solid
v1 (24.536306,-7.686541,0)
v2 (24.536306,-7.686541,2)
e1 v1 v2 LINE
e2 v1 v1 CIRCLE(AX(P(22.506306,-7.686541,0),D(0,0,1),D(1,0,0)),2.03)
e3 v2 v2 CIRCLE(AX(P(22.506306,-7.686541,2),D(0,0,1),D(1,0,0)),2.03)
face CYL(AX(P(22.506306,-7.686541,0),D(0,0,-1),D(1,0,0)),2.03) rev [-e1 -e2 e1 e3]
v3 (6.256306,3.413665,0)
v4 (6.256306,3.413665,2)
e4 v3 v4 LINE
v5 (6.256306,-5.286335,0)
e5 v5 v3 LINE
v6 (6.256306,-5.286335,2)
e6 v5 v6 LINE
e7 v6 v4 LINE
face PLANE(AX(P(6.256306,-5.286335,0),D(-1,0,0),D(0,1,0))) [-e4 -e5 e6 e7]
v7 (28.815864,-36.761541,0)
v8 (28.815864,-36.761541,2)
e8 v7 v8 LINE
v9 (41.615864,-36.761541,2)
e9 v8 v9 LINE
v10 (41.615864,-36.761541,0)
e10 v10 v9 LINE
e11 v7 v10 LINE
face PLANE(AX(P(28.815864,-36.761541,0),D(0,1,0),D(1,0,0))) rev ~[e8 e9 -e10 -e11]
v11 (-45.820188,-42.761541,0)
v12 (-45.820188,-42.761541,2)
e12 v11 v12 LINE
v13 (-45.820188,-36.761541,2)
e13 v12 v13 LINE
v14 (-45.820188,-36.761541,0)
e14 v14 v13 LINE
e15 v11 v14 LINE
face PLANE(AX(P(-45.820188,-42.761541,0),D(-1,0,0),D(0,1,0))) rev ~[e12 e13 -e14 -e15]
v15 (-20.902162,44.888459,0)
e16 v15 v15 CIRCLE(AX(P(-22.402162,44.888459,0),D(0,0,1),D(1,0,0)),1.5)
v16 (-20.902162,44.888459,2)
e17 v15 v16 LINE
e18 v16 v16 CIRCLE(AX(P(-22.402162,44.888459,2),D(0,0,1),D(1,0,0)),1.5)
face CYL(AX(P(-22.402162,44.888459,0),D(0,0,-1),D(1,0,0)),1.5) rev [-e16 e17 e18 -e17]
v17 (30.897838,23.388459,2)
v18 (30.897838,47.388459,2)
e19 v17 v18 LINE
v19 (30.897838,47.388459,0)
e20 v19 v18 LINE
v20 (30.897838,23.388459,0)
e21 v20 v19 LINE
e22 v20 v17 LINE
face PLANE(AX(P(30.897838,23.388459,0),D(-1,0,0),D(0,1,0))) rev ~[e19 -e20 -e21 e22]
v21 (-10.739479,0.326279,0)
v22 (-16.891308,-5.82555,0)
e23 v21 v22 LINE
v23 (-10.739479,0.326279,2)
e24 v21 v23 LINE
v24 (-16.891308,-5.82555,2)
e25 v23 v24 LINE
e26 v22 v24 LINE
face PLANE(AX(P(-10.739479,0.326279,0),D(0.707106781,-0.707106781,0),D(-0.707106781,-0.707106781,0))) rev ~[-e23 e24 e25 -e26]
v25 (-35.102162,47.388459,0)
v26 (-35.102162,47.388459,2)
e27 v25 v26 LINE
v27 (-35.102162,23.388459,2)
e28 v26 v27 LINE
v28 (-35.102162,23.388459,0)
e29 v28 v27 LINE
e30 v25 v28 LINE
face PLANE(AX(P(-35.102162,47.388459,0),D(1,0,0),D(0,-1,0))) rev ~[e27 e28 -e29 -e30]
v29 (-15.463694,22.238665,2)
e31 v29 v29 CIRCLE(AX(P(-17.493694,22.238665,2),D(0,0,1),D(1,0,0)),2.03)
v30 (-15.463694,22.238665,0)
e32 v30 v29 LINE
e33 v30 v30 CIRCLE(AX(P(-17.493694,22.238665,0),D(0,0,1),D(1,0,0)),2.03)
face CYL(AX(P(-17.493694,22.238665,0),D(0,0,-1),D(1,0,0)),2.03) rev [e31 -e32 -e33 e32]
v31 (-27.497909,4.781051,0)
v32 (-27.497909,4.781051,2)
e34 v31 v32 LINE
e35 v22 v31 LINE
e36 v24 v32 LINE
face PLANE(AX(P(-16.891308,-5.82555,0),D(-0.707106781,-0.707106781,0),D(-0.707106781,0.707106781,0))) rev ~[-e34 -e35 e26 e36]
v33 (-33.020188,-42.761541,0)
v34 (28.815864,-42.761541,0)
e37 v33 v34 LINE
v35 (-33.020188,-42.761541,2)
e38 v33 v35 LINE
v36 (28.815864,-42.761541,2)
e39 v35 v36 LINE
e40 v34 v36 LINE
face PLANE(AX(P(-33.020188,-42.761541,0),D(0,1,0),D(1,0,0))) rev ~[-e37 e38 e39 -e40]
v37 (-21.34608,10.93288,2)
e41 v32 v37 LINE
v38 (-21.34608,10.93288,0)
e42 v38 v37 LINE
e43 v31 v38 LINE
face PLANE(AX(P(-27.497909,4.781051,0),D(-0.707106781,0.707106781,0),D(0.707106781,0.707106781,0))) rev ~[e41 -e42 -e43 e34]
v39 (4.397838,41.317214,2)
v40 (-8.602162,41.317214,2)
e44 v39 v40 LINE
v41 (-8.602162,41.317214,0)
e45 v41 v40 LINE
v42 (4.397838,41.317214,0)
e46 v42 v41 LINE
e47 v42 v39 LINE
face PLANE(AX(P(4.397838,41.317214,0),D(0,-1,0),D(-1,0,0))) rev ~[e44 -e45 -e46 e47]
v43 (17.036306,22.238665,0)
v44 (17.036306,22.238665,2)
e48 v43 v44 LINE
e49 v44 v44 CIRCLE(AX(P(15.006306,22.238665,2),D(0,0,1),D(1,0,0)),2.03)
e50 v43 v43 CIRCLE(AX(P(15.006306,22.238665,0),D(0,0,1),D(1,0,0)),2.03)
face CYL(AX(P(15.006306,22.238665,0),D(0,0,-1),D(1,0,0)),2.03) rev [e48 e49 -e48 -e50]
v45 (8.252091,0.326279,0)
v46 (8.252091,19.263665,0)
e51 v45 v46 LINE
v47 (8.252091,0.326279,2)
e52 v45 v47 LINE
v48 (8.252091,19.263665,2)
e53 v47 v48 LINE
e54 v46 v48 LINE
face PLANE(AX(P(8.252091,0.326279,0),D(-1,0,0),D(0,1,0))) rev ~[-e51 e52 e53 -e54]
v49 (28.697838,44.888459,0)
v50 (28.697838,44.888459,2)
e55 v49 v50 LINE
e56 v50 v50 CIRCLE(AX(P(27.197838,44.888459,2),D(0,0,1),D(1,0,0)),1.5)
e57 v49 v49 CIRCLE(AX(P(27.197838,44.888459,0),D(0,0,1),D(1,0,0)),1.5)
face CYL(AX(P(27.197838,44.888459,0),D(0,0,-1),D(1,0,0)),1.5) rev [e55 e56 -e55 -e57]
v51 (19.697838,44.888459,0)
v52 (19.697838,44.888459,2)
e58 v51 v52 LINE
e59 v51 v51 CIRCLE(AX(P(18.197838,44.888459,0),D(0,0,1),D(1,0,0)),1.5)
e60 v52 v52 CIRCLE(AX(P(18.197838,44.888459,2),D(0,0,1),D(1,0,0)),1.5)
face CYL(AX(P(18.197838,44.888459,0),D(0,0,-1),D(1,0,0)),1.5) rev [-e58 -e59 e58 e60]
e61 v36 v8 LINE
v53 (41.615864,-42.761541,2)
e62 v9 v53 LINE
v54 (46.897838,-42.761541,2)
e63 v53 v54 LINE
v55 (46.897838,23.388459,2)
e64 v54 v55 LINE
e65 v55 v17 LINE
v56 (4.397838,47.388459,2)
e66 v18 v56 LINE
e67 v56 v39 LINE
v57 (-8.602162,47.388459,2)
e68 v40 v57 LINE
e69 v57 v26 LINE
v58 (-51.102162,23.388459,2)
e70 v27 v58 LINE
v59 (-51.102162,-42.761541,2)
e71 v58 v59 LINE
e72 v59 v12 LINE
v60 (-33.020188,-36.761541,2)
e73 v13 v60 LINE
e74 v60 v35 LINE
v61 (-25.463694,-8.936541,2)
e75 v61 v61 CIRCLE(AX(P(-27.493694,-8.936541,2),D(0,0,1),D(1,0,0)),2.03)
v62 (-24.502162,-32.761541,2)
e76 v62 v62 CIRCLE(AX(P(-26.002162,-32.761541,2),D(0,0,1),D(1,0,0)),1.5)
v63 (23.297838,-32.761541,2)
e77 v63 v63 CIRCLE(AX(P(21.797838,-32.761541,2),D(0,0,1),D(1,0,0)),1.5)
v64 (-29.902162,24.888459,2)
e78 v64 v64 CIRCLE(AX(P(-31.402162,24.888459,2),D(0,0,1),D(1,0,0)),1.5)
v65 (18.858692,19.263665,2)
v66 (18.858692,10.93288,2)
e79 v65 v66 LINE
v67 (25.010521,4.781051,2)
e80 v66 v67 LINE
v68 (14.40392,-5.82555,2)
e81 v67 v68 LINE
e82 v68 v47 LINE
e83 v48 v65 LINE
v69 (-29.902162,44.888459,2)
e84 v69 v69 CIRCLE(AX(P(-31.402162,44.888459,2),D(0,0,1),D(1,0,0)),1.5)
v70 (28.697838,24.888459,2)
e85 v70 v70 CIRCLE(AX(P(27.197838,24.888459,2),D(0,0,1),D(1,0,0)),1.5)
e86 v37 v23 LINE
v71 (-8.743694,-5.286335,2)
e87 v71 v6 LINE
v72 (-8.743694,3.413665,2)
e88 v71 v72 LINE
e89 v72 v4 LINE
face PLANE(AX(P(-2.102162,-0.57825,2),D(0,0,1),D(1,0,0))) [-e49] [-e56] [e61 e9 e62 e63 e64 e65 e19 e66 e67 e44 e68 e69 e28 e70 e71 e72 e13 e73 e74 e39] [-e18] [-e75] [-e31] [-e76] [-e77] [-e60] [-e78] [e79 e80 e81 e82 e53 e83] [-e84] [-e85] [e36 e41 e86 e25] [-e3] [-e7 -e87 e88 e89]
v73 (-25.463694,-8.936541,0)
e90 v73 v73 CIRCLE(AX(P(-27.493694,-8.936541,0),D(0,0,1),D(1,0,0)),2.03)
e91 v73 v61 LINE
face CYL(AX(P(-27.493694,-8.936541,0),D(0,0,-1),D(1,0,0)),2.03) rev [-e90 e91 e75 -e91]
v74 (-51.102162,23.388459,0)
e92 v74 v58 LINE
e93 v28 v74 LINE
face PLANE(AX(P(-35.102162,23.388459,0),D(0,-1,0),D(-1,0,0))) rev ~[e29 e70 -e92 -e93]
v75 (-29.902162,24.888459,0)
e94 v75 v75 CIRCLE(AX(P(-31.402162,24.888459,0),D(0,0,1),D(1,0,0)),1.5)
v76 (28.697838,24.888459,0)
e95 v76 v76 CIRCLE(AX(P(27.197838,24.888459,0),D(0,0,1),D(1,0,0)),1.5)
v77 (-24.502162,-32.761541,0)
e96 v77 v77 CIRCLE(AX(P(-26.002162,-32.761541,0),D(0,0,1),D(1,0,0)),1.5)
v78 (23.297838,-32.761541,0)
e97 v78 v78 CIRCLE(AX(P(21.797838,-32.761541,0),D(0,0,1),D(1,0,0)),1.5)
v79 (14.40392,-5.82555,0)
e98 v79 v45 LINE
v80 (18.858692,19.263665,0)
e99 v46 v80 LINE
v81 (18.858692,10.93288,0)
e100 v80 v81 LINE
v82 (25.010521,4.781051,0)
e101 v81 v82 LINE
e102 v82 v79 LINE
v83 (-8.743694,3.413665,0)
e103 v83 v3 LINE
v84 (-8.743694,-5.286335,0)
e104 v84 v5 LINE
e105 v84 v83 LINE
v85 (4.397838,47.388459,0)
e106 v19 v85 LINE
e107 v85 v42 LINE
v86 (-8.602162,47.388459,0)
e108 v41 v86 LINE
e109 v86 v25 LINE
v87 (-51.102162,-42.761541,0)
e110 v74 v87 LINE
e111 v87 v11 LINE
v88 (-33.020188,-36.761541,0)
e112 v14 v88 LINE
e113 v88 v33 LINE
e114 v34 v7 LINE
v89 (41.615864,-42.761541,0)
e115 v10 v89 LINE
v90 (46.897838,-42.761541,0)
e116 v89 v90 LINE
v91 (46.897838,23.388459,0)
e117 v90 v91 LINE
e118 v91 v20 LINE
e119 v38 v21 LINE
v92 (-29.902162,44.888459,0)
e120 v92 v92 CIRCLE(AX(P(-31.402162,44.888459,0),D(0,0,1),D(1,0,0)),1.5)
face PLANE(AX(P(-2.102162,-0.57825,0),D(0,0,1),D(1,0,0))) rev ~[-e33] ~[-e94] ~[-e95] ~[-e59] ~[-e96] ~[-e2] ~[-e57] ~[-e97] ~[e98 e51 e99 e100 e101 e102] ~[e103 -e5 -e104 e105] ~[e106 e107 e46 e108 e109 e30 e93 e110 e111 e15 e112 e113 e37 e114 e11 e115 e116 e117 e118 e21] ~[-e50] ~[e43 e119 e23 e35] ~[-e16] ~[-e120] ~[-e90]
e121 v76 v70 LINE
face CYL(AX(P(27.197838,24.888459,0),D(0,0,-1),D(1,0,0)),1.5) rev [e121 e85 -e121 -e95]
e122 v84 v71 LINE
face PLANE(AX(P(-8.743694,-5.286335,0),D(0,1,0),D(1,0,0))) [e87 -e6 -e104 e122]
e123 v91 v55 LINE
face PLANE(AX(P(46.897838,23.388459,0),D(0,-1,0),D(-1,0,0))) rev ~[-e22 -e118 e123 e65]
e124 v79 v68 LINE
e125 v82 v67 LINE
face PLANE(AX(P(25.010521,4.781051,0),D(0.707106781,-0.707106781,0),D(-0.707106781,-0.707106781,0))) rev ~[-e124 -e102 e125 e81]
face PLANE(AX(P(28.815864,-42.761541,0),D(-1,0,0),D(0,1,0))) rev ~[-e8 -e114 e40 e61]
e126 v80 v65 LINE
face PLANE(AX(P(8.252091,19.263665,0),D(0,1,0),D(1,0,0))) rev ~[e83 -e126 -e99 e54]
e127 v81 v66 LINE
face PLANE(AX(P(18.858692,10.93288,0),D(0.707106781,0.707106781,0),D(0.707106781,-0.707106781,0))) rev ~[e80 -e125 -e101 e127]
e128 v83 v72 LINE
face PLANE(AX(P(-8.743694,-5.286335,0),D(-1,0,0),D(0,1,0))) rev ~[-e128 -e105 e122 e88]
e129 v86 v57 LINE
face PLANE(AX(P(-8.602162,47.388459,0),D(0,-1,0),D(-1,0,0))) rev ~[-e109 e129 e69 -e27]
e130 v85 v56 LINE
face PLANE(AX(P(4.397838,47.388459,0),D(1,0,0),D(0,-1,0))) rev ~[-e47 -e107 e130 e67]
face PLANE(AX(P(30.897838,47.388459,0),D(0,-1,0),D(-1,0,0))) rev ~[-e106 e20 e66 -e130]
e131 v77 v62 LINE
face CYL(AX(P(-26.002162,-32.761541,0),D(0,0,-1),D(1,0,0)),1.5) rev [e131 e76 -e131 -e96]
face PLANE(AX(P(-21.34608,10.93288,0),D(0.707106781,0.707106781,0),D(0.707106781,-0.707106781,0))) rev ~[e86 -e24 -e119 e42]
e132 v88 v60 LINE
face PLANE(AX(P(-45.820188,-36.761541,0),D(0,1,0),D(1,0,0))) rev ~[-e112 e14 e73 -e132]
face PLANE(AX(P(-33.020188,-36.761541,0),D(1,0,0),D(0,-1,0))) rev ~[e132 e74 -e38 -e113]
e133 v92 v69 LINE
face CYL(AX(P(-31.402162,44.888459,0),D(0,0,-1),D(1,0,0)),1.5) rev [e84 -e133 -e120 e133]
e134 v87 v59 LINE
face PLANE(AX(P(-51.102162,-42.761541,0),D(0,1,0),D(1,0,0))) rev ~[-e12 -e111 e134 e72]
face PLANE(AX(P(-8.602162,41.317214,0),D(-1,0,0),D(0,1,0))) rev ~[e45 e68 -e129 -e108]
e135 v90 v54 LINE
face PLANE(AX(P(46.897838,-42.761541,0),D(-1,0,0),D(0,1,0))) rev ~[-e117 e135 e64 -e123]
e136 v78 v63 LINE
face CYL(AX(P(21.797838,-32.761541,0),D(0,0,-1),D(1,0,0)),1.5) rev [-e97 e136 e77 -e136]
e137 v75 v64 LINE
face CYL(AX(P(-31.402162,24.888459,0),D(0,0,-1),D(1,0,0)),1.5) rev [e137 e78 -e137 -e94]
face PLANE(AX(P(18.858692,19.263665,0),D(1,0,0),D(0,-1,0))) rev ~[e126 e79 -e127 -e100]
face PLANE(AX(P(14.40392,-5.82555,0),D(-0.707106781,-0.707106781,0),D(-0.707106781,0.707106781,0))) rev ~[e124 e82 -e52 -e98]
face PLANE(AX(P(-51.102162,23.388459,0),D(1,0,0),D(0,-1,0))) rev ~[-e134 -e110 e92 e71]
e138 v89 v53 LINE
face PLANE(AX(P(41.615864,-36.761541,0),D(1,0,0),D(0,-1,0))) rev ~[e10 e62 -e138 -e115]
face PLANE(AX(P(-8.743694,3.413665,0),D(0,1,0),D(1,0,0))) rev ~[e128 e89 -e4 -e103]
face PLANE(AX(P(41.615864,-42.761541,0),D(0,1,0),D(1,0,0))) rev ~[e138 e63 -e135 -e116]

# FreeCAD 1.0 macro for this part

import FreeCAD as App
import Part
import Sketcher
Q = App.Units.Quantity

doc = App.newDocument("Part")
body = doc.addObject("PartDesign::Body", "Body")

# Sketch on XY plane
sketch1 = body.newObject("Sketcher::SketchObject", "Sketch")
sketch1.AttachmentSupport = (doc.getObject("XY_Plane"), [""])
sketch1.MapMode = "FlatFace"
sketch1.addGeometry([
    Part.LineSegment(App.Vector(41.615864, -42.761541, 0), App.Vector(46.897838, -42.761541, 0)),  # 0
    Part.LineSegment(App.Vector(46.897838, -42.761541, 0), App.Vector(46.897838, 23.388459, 0)),  # 1
    Part.LineSegment(App.Vector(46.897838, 23.388459, 0), App.Vector(30.897838, 23.388459, 0)),  # 2
    Part.LineSegment(App.Vector(30.897838, 23.388459, 0), App.Vector(30.897838, 47.388459, 0)),  # 3
    Part.LineSegment(App.Vector(30.897838, 47.388459, 0), App.Vector(4.397838, 47.388459, 0)),  # 4
    Part.LineSegment(App.Vector(4.397838, 47.388459, 0), App.Vector(4.397838, 41.317214, 0)),  # 5
    Part.LineSegment(App.Vector(4.397838, 41.317214, 0), App.Vector(-8.602162, 41.317214, 0)),  # 6
    Part.LineSegment(App.Vector(-8.602162, 41.317214, 0), App.Vector(-8.602162, 47.388459, 0)),  # 7
    Part.LineSegment(App.Vector(-8.602162, 47.388459, 0), App.Vector(-35.102162, 47.388459, 0)),  # 8
    Part.LineSegment(App.Vector(-35.102162, 47.388459, 0), App.Vector(-35.102162, 23.388459, 0)),  # 9
    Part.LineSegment(App.Vector(-35.102162, 23.388459, 0), App.Vector(-51.102162, 23.388459, 0)),  # 10
    Part.LineSegment(App.Vector(-51.102162, 23.388459, 0), App.Vector(-51.102162, -42.761541, 0)),  # 11
    Part.LineSegment(App.Vector(-51.102162, -42.761541, 0), App.Vector(-45.820188, -42.761541, 0)),  # 12
    Part.LineSegment(App.Vector(-45.820188, -42.761541, 0), App.Vector(-45.820188, -36.761541, 0)),  # 13
    Part.LineSegment(App.Vector(-45.820188, -36.761541, 0), App.Vector(-33.020188, -36.761541, 0)),  # 14
    Part.LineSegment(App.Vector(-33.020188, -36.761541, 0), App.Vector(-33.020188, -42.761541, 0)),  # 15
    Part.LineSegment(App.Vector(-33.020188, -42.761541, 0), App.Vector(28.815864, -42.761541, 0)),  # 16
    Part.LineSegment(App.Vector(28.815864, -42.761541, 0), App.Vector(28.815864, -36.761541, 0)),  # 17
    Part.LineSegment(App.Vector(28.815864, -36.761541, 0), App.Vector(41.615864, -36.761541, 0)),  # 18
    Part.LineSegment(App.Vector(41.615864, -36.761541, 0), App.Vector(41.615864, -42.761541, 0)),  # 19
    Part.Circle(App.Vector(-26.002162, -32.761541, 0), App.Vector(0, 0, 1), 1.5),  # 20
    Part.Circle(App.Vector(-27.493694, -8.936541, 0), App.Vector(0, 0, 1), 2.03),  # 21
    Part.LineSegment(App.Vector(-27.497909, 4.781051, 0), App.Vector(-21.34608, 10.93288, 0)),  # 22
    Part.LineSegment(App.Vector(-21.34608, 10.93288, 0), App.Vector(-10.739479, 0.326279, 0)),  # 23
    Part.LineSegment(App.Vector(-10.739479, 0.326279, 0), App.Vector(-16.891308, -5.82555, 0)),  # 24
    Part.LineSegment(App.Vector(-16.891308, -5.82555, 0), App.Vector(-27.497909, 4.781051, 0)),  # 25
    Part.Circle(App.Vector(21.797838, -32.761541, 0), App.Vector(0, 0, 1), 1.5),  # 26
    Part.LineSegment(App.Vector(6.256306, -5.286335, 0), App.Vector(-8.743694, -5.286335, 0)),  # 27
    Part.LineSegment(App.Vector(-8.743694, -5.286335, 0), App.Vector(-8.743694, 3.413665, 0)),  # 28
    Part.LineSegment(App.Vector(-8.743694, 3.413665, 0), App.Vector(6.256306, 3.413665, 0)),  # 29
    Part.LineSegment(App.Vector(6.256306, 3.413665, 0), App.Vector(6.256306, -5.286335, 0)),  # 30
    Part.Circle(App.Vector(22.506306, -7.686541, 0), App.Vector(0, 0, 1), 2.03),  # 31
    Part.Circle(App.Vector(-31.402162, 24.888459, 0), App.Vector(0, 0, 1), 1.5),  # 32
    Part.Circle(App.Vector(-17.493694, 22.238665, 0), App.Vector(0, 0, 1), 2.03),  # 33
    Part.Circle(App.Vector(-31.402162, 44.888459, 0), App.Vector(0, 0, 1), 1.5),  # 34
    Part.Circle(App.Vector(-22.402162, 44.888459, 0), App.Vector(0, 0, 1), 1.5),  # 35
    Part.LineSegment(App.Vector(25.010521, 4.781051, 0), App.Vector(14.40392, -5.82555, 0)),  # 36
    Part.LineSegment(App.Vector(14.40392, -5.82555, 0), App.Vector(8.252091, 0.326279, 0)),  # 37
    Part.LineSegment(App.Vector(8.252091, 0.326279, 0), App.Vector(8.252091, 19.263665, 0)),  # 38
    Part.LineSegment(App.Vector(8.252091, 19.263665, 0), App.Vector(18.858692, 19.263665, 0)),  # 39
    Part.LineSegment(App.Vector(18.858692, 19.263665, 0), App.Vector(18.858692, 10.93288, 0)),  # 40
    Part.LineSegment(App.Vector(18.858692, 10.93288, 0), App.Vector(25.010521, 4.781051, 0)),  # 41
    Part.Circle(App.Vector(15.006306, 22.238665, 0), App.Vector(0, 0, 1), 2.03),  # 42
    Part.Circle(App.Vector(27.197838, 24.888459, 0), App.Vector(0, 0, 1), 1.5),  # 43
    Part.Circle(App.Vector(18.197838, 44.888459, 0), App.Vector(0, 0, 1), 1.5),  # 44
    Part.Circle(App.Vector(27.197838, 44.888459, 0), App.Vector(0, 0, 1), 1.5),  # 45
], False)
sketch1.addConstraint([
    Sketcher.Constraint("Coincident", 0, 2, 1, 1),
    Sketcher.Constraint("Coincident", 1, 2, 2, 1),
    Sketcher.Constraint("Coincident", 2, 2, 3, 1),
    Sketcher.Constraint("Coincident", 3, 2, 4, 1),
    Sketcher.Constraint("Coincident", 4, 2, 5, 1),
    Sketcher.Constraint("Coincident", 5, 2, 6, 1),
    Sketcher.Constraint("Coincident", 6, 2, 7, 1),
    Sketcher.Constraint("Coincident", 7, 2, 8, 1),
    Sketcher.Constraint("Coincident", 8, 2, 9, 1),
    Sketcher.Constraint("Coincident", 9, 2, 10, 1),
    Sketcher.Constraint("Coincident", 10, 2, 11, 1),
    Sketcher.Constraint("Coincident", 11, 2, 12, 1),
    Sketcher.Constraint("Coincident", 12, 2, 13, 1),
    Sketcher.Constraint("Coincident", 13, 2, 14, 1),
    Sketcher.Constraint("Coincident", 14, 2, 15, 1),
    Sketcher.Constraint("Coincident", 15, 2, 16, 1),
    Sketcher.Constraint("Coincident", 16, 2, 17, 1),
    Sketcher.Constraint("Coincident", 17, 2, 18, 1),
    Sketcher.Constraint("Coincident", 18, 2, 19, 1),
    Sketcher.Constraint("Coincident", 19, 2, 0, 1),
    Sketcher.Constraint("Coincident", 22, 2, 23, 1),
    Sketcher.Constraint("Coincident", 23, 2, 24, 1),
    Sketcher.Constraint("Coincident", 24, 2, 25, 1),
    Sketcher.Constraint("Coincident", 25, 2, 22, 1),
    Sketcher.Constraint("Coincident", 27, 2, 28, 1),
    Sketcher.Constraint("Coincident", 28, 2, 29, 1),
    Sketcher.Constraint("Coincident", 29, 2, 30, 1),
    Sketcher.Constraint("Coincident", 30, 2, 27, 1),
    Sketcher.Constraint("Coincident", 36, 2, 37, 1),
    Sketcher.Constraint("Coincident", 37, 2, 38, 1),
    Sketcher.Constraint("Coincident", 38, 2, 39, 1),
    Sketcher.Constraint("Coincident", 39, 2, 40, 1),
    Sketcher.Constraint("Coincident", 40, 2, 41, 1),
    Sketcher.Constraint("Coincident", 41, 2, 36, 1),
    Sketcher.Constraint("Horizontal", 0),
    Sketcher.Constraint("Vertical", 1),
    Sketcher.Constraint("Horizontal", 2),
    Sketcher.Constraint("Vertical", 3),
    Sketcher.Constraint("Horizontal", 4),
    Sketcher.Constraint("Vertical", 5),
    Sketcher.Constraint("Horizontal", 6),
    Sketcher.Constraint("Vertical", 7),
    Sketcher.Constraint("Horizontal", 8),
    Sketcher.Constraint("Vertical", 9),
    Sketcher.Constraint("Horizontal", 10),
    Sketcher.Constraint("Vertical", 11),
    Sketcher.Constraint("Horizontal", 12),
    Sketcher.Constraint("Vertical", 13),
    Sketcher.Constraint("Horizontal", 14),
    Sketcher.Constraint("Vertical", 15),
    Sketcher.Constraint("Horizontal", 16),
    Sketcher.Constraint("Vertical", 17),
    Sketcher.Constraint("Horizontal", 18),
    Sketcher.Constraint("Vertical", 19),
    Sketcher.Constraint("Horizontal", 27),
    Sketcher.Constraint("Vertical", 28),
    Sketcher.Constraint("Horizontal", 29),
    Sketcher.Constraint("Vertical", 30),
    Sketcher.Constraint("Vertical", 38),
    Sketcher.Constraint("Horizontal", 39),
    Sketcher.Constraint("Vertical", 40),
    Sketcher.Constraint("Equal", 20, 26),
    Sketcher.Constraint("Equal", 21, 31),
    Sketcher.Constraint("Equal", 26, 32),
    Sketcher.Constraint("Equal", 31, 33),
    Sketcher.Constraint("Equal", 32, 34),
    Sketcher.Constraint("Equal", 34, 35),
    Sketcher.Constraint("Equal", 33, 42),
    Sketcher.Constraint("Equal", 35, 43),
    Sketcher.Constraint("Equal", 43, 44),
    Sketcher.Constraint("Equal", 44, 45),
    Sketcher.Constraint("Perpendicular", 22, 23),
    Sketcher.Constraint("Perpendicular", 23, 24),
    Sketcher.Constraint("Perpendicular", 24, 25),
    Sketcher.Constraint("Perpendicular", 25, 36),
    Sketcher.Constraint("Perpendicular", 36, 37),
    Sketcher.Constraint("Parallel", 37, 41),
    Sketcher.Constraint("Horizontal", 20, 3, 26, 3),
    Sketcher.Constraint("Horizontal", 34, 3, 35, 3),
    Sketcher.Constraint("Horizontal", 33, 3, 42, 3),
    Sketcher.Constraint("Horizontal", 32, 3, 43, 3),
    Sketcher.Constraint("Horizontal", 35, 3, 44, 3),
    Sketcher.Constraint("Horizontal", 44, 3, 45, 3),
    Sketcher.Constraint("Horizontal", 4, 2, 7, 2),
    Sketcher.Constraint("Horizontal", 2, 2, 9, 2),
    Sketcher.Constraint("Horizontal", 0, 2, 11, 2),
    Sketcher.Constraint("Horizontal", 12, 2, 15, 2),
    Sketcher.Constraint("Horizontal", 14, 2, 17, 2),
    Sketcher.Constraint("Horizontal", 24, 2, 36, 2),
    Sketcher.Constraint("Horizontal", 23, 2, 37, 2),
    Sketcher.Constraint("Horizontal", 22, 2, 40, 2),
    Sketcher.Constraint("Horizontal", 25, 2, 41, 2),
    Sketcher.Constraint("Vertical", 32, 3, 34, 3),
    Sketcher.Constraint("Vertical", 43, 3, 45, 3),
    Sketcher.Constraint("Equal", 4, 8),
    Sketcher.Constraint("Equal", 2, 10),
    Sketcher.Constraint("Equal", 0, 12),
    Sketcher.Constraint("Equal", 14, 18),
    Sketcher.Constraint("Equal", 25, 36),
    Sketcher.Constraint("Diameter", 20, Q("3 mm")),
    Sketcher.Constraint("Diameter", 21, Q("4.06 mm")),
    Sketcher.Constraint("DistanceX", 2, 2, 2, 1, Q("16 mm")),
    Sketcher.Constraint("DistanceX", 6, 2, 6, 1, Q("13 mm")),
    Sketcher.Constraint("DistanceX", 27, 2, 27, 1, Q("15 mm")),
    Sketcher.Constraint("DistanceY", 3, 1, 3, 2, Q("24 mm")),
    Sketcher.Constraint("DistanceY", 13, 1, 13, 2, Q("6 mm")),
    Sketcher.Constraint("Distance", 23, Q("14.999999 mm")),
    Sketcher.Constraint("DistanceX", 4, 2, 4, 1, Q("26.5 mm")),
    Sketcher.Constraint("DistanceX", 14, 1, 14, 2, Q("12.8 mm")),
    Sketcher.Constraint("DistanceY", 28, 1, 28, 2, Q("8.7 mm")),
    Sketcher.Constraint("DistanceX", 21, 3, 31, 3, Q("50 mm")),
    Sketcher.Constraint("DistanceX", 21, 3, 33, 3, Q("10 mm")),
    Sketcher.Constraint("DistanceY", 32, 3, 34, 3, Q("20 mm")),
    Sketcher.Constraint("DistanceX", 34, 3, 35, 3, Q("9 mm")),
    Sketcher.Constraint("DistanceX", 44, 3, 43, 3, Q("9 mm")),
    Sketcher.Constraint("DistanceY", 0, 2, 26, 3, Q("10 mm")),
    Sketcher.Constraint("Distance", 22, Q("8.7 mm")),
    Sketcher.Constraint("DistanceY", 1, 1, 1, 2, Q("66.15 mm")),
    Sketcher.Constraint("DistanceX", 20, 3, 26, 3, Q("47.8 mm")),
    Sketcher.Constraint("DistanceX", 32, 3, 20, 3, Q("5.4 mm")),
    Sketcher.Constraint("DistanceX", 42, 3, 31, 3, Q("7.5 mm")),
    Sketcher.Constraint("DistanceX", 35, 3, 43, 3, Q("49.6 mm")),
    Sketcher.Constraint("DistanceX", 26, 3, 0, 2, Q("25.1 mm")),
    Sketcher.Constraint("DistanceY", 1, 2, 43, 3, Q("1.5 mm")),
    Sketcher.Constraint("DistanceY", 21, 3, 31, 3, Q("1.25 mm")),
    Sketcher.Constraint("DistanceX", 21, 3, 27, 2, Q("18.75 mm")),
    Sketcher.Constraint("DistanceY", 29, 2, 38, 2, Q("15.85 mm")),
    Sketcher.Constraint("DistanceY", 20, 3, 21, 3, Q("23.825 mm")),
    Sketcher.Constraint("DistanceY", 29, 2, 42, 3, Q("18.825 mm")),
    Sketcher.Constraint("DistanceX", 16, 1, 16, 2, Q("61.836052 mm")),
    Sketcher.Constraint("DistanceY", 5, 2, 5, 1, Q("6.071245 mm")),
    Sketcher.Constraint("DistanceY", 38, 1, 38, 2, Q("18.937386 mm")),
    Sketcher.Constraint("DistanceX", 20, 3, -1, 1, Q("26.002162 mm")),
    Sketcher.Constraint("DistanceY", 20, 3, -1, 1, Q("32.761541 mm")),
    Sketcher.Constraint("DistanceX", 22, 2, -1, 1, Q("21.34608 mm")),
    Sketcher.Constraint("DistanceY", -1, 1, 22, 2, Q("10.93288 mm")),
    Sketcher.Constraint("DistanceX", -1, 1, 36, 2, Q("14.40392 mm")),
    Sketcher.Constraint("DistanceX", 42, 3, 0, 2, Q("31.891532 mm")),
])
pad1 = body.newObject("PartDesign::Pad", "Pad")
pad1.Profile = sketch1
pad1.Length = 2

doc.recompute()
